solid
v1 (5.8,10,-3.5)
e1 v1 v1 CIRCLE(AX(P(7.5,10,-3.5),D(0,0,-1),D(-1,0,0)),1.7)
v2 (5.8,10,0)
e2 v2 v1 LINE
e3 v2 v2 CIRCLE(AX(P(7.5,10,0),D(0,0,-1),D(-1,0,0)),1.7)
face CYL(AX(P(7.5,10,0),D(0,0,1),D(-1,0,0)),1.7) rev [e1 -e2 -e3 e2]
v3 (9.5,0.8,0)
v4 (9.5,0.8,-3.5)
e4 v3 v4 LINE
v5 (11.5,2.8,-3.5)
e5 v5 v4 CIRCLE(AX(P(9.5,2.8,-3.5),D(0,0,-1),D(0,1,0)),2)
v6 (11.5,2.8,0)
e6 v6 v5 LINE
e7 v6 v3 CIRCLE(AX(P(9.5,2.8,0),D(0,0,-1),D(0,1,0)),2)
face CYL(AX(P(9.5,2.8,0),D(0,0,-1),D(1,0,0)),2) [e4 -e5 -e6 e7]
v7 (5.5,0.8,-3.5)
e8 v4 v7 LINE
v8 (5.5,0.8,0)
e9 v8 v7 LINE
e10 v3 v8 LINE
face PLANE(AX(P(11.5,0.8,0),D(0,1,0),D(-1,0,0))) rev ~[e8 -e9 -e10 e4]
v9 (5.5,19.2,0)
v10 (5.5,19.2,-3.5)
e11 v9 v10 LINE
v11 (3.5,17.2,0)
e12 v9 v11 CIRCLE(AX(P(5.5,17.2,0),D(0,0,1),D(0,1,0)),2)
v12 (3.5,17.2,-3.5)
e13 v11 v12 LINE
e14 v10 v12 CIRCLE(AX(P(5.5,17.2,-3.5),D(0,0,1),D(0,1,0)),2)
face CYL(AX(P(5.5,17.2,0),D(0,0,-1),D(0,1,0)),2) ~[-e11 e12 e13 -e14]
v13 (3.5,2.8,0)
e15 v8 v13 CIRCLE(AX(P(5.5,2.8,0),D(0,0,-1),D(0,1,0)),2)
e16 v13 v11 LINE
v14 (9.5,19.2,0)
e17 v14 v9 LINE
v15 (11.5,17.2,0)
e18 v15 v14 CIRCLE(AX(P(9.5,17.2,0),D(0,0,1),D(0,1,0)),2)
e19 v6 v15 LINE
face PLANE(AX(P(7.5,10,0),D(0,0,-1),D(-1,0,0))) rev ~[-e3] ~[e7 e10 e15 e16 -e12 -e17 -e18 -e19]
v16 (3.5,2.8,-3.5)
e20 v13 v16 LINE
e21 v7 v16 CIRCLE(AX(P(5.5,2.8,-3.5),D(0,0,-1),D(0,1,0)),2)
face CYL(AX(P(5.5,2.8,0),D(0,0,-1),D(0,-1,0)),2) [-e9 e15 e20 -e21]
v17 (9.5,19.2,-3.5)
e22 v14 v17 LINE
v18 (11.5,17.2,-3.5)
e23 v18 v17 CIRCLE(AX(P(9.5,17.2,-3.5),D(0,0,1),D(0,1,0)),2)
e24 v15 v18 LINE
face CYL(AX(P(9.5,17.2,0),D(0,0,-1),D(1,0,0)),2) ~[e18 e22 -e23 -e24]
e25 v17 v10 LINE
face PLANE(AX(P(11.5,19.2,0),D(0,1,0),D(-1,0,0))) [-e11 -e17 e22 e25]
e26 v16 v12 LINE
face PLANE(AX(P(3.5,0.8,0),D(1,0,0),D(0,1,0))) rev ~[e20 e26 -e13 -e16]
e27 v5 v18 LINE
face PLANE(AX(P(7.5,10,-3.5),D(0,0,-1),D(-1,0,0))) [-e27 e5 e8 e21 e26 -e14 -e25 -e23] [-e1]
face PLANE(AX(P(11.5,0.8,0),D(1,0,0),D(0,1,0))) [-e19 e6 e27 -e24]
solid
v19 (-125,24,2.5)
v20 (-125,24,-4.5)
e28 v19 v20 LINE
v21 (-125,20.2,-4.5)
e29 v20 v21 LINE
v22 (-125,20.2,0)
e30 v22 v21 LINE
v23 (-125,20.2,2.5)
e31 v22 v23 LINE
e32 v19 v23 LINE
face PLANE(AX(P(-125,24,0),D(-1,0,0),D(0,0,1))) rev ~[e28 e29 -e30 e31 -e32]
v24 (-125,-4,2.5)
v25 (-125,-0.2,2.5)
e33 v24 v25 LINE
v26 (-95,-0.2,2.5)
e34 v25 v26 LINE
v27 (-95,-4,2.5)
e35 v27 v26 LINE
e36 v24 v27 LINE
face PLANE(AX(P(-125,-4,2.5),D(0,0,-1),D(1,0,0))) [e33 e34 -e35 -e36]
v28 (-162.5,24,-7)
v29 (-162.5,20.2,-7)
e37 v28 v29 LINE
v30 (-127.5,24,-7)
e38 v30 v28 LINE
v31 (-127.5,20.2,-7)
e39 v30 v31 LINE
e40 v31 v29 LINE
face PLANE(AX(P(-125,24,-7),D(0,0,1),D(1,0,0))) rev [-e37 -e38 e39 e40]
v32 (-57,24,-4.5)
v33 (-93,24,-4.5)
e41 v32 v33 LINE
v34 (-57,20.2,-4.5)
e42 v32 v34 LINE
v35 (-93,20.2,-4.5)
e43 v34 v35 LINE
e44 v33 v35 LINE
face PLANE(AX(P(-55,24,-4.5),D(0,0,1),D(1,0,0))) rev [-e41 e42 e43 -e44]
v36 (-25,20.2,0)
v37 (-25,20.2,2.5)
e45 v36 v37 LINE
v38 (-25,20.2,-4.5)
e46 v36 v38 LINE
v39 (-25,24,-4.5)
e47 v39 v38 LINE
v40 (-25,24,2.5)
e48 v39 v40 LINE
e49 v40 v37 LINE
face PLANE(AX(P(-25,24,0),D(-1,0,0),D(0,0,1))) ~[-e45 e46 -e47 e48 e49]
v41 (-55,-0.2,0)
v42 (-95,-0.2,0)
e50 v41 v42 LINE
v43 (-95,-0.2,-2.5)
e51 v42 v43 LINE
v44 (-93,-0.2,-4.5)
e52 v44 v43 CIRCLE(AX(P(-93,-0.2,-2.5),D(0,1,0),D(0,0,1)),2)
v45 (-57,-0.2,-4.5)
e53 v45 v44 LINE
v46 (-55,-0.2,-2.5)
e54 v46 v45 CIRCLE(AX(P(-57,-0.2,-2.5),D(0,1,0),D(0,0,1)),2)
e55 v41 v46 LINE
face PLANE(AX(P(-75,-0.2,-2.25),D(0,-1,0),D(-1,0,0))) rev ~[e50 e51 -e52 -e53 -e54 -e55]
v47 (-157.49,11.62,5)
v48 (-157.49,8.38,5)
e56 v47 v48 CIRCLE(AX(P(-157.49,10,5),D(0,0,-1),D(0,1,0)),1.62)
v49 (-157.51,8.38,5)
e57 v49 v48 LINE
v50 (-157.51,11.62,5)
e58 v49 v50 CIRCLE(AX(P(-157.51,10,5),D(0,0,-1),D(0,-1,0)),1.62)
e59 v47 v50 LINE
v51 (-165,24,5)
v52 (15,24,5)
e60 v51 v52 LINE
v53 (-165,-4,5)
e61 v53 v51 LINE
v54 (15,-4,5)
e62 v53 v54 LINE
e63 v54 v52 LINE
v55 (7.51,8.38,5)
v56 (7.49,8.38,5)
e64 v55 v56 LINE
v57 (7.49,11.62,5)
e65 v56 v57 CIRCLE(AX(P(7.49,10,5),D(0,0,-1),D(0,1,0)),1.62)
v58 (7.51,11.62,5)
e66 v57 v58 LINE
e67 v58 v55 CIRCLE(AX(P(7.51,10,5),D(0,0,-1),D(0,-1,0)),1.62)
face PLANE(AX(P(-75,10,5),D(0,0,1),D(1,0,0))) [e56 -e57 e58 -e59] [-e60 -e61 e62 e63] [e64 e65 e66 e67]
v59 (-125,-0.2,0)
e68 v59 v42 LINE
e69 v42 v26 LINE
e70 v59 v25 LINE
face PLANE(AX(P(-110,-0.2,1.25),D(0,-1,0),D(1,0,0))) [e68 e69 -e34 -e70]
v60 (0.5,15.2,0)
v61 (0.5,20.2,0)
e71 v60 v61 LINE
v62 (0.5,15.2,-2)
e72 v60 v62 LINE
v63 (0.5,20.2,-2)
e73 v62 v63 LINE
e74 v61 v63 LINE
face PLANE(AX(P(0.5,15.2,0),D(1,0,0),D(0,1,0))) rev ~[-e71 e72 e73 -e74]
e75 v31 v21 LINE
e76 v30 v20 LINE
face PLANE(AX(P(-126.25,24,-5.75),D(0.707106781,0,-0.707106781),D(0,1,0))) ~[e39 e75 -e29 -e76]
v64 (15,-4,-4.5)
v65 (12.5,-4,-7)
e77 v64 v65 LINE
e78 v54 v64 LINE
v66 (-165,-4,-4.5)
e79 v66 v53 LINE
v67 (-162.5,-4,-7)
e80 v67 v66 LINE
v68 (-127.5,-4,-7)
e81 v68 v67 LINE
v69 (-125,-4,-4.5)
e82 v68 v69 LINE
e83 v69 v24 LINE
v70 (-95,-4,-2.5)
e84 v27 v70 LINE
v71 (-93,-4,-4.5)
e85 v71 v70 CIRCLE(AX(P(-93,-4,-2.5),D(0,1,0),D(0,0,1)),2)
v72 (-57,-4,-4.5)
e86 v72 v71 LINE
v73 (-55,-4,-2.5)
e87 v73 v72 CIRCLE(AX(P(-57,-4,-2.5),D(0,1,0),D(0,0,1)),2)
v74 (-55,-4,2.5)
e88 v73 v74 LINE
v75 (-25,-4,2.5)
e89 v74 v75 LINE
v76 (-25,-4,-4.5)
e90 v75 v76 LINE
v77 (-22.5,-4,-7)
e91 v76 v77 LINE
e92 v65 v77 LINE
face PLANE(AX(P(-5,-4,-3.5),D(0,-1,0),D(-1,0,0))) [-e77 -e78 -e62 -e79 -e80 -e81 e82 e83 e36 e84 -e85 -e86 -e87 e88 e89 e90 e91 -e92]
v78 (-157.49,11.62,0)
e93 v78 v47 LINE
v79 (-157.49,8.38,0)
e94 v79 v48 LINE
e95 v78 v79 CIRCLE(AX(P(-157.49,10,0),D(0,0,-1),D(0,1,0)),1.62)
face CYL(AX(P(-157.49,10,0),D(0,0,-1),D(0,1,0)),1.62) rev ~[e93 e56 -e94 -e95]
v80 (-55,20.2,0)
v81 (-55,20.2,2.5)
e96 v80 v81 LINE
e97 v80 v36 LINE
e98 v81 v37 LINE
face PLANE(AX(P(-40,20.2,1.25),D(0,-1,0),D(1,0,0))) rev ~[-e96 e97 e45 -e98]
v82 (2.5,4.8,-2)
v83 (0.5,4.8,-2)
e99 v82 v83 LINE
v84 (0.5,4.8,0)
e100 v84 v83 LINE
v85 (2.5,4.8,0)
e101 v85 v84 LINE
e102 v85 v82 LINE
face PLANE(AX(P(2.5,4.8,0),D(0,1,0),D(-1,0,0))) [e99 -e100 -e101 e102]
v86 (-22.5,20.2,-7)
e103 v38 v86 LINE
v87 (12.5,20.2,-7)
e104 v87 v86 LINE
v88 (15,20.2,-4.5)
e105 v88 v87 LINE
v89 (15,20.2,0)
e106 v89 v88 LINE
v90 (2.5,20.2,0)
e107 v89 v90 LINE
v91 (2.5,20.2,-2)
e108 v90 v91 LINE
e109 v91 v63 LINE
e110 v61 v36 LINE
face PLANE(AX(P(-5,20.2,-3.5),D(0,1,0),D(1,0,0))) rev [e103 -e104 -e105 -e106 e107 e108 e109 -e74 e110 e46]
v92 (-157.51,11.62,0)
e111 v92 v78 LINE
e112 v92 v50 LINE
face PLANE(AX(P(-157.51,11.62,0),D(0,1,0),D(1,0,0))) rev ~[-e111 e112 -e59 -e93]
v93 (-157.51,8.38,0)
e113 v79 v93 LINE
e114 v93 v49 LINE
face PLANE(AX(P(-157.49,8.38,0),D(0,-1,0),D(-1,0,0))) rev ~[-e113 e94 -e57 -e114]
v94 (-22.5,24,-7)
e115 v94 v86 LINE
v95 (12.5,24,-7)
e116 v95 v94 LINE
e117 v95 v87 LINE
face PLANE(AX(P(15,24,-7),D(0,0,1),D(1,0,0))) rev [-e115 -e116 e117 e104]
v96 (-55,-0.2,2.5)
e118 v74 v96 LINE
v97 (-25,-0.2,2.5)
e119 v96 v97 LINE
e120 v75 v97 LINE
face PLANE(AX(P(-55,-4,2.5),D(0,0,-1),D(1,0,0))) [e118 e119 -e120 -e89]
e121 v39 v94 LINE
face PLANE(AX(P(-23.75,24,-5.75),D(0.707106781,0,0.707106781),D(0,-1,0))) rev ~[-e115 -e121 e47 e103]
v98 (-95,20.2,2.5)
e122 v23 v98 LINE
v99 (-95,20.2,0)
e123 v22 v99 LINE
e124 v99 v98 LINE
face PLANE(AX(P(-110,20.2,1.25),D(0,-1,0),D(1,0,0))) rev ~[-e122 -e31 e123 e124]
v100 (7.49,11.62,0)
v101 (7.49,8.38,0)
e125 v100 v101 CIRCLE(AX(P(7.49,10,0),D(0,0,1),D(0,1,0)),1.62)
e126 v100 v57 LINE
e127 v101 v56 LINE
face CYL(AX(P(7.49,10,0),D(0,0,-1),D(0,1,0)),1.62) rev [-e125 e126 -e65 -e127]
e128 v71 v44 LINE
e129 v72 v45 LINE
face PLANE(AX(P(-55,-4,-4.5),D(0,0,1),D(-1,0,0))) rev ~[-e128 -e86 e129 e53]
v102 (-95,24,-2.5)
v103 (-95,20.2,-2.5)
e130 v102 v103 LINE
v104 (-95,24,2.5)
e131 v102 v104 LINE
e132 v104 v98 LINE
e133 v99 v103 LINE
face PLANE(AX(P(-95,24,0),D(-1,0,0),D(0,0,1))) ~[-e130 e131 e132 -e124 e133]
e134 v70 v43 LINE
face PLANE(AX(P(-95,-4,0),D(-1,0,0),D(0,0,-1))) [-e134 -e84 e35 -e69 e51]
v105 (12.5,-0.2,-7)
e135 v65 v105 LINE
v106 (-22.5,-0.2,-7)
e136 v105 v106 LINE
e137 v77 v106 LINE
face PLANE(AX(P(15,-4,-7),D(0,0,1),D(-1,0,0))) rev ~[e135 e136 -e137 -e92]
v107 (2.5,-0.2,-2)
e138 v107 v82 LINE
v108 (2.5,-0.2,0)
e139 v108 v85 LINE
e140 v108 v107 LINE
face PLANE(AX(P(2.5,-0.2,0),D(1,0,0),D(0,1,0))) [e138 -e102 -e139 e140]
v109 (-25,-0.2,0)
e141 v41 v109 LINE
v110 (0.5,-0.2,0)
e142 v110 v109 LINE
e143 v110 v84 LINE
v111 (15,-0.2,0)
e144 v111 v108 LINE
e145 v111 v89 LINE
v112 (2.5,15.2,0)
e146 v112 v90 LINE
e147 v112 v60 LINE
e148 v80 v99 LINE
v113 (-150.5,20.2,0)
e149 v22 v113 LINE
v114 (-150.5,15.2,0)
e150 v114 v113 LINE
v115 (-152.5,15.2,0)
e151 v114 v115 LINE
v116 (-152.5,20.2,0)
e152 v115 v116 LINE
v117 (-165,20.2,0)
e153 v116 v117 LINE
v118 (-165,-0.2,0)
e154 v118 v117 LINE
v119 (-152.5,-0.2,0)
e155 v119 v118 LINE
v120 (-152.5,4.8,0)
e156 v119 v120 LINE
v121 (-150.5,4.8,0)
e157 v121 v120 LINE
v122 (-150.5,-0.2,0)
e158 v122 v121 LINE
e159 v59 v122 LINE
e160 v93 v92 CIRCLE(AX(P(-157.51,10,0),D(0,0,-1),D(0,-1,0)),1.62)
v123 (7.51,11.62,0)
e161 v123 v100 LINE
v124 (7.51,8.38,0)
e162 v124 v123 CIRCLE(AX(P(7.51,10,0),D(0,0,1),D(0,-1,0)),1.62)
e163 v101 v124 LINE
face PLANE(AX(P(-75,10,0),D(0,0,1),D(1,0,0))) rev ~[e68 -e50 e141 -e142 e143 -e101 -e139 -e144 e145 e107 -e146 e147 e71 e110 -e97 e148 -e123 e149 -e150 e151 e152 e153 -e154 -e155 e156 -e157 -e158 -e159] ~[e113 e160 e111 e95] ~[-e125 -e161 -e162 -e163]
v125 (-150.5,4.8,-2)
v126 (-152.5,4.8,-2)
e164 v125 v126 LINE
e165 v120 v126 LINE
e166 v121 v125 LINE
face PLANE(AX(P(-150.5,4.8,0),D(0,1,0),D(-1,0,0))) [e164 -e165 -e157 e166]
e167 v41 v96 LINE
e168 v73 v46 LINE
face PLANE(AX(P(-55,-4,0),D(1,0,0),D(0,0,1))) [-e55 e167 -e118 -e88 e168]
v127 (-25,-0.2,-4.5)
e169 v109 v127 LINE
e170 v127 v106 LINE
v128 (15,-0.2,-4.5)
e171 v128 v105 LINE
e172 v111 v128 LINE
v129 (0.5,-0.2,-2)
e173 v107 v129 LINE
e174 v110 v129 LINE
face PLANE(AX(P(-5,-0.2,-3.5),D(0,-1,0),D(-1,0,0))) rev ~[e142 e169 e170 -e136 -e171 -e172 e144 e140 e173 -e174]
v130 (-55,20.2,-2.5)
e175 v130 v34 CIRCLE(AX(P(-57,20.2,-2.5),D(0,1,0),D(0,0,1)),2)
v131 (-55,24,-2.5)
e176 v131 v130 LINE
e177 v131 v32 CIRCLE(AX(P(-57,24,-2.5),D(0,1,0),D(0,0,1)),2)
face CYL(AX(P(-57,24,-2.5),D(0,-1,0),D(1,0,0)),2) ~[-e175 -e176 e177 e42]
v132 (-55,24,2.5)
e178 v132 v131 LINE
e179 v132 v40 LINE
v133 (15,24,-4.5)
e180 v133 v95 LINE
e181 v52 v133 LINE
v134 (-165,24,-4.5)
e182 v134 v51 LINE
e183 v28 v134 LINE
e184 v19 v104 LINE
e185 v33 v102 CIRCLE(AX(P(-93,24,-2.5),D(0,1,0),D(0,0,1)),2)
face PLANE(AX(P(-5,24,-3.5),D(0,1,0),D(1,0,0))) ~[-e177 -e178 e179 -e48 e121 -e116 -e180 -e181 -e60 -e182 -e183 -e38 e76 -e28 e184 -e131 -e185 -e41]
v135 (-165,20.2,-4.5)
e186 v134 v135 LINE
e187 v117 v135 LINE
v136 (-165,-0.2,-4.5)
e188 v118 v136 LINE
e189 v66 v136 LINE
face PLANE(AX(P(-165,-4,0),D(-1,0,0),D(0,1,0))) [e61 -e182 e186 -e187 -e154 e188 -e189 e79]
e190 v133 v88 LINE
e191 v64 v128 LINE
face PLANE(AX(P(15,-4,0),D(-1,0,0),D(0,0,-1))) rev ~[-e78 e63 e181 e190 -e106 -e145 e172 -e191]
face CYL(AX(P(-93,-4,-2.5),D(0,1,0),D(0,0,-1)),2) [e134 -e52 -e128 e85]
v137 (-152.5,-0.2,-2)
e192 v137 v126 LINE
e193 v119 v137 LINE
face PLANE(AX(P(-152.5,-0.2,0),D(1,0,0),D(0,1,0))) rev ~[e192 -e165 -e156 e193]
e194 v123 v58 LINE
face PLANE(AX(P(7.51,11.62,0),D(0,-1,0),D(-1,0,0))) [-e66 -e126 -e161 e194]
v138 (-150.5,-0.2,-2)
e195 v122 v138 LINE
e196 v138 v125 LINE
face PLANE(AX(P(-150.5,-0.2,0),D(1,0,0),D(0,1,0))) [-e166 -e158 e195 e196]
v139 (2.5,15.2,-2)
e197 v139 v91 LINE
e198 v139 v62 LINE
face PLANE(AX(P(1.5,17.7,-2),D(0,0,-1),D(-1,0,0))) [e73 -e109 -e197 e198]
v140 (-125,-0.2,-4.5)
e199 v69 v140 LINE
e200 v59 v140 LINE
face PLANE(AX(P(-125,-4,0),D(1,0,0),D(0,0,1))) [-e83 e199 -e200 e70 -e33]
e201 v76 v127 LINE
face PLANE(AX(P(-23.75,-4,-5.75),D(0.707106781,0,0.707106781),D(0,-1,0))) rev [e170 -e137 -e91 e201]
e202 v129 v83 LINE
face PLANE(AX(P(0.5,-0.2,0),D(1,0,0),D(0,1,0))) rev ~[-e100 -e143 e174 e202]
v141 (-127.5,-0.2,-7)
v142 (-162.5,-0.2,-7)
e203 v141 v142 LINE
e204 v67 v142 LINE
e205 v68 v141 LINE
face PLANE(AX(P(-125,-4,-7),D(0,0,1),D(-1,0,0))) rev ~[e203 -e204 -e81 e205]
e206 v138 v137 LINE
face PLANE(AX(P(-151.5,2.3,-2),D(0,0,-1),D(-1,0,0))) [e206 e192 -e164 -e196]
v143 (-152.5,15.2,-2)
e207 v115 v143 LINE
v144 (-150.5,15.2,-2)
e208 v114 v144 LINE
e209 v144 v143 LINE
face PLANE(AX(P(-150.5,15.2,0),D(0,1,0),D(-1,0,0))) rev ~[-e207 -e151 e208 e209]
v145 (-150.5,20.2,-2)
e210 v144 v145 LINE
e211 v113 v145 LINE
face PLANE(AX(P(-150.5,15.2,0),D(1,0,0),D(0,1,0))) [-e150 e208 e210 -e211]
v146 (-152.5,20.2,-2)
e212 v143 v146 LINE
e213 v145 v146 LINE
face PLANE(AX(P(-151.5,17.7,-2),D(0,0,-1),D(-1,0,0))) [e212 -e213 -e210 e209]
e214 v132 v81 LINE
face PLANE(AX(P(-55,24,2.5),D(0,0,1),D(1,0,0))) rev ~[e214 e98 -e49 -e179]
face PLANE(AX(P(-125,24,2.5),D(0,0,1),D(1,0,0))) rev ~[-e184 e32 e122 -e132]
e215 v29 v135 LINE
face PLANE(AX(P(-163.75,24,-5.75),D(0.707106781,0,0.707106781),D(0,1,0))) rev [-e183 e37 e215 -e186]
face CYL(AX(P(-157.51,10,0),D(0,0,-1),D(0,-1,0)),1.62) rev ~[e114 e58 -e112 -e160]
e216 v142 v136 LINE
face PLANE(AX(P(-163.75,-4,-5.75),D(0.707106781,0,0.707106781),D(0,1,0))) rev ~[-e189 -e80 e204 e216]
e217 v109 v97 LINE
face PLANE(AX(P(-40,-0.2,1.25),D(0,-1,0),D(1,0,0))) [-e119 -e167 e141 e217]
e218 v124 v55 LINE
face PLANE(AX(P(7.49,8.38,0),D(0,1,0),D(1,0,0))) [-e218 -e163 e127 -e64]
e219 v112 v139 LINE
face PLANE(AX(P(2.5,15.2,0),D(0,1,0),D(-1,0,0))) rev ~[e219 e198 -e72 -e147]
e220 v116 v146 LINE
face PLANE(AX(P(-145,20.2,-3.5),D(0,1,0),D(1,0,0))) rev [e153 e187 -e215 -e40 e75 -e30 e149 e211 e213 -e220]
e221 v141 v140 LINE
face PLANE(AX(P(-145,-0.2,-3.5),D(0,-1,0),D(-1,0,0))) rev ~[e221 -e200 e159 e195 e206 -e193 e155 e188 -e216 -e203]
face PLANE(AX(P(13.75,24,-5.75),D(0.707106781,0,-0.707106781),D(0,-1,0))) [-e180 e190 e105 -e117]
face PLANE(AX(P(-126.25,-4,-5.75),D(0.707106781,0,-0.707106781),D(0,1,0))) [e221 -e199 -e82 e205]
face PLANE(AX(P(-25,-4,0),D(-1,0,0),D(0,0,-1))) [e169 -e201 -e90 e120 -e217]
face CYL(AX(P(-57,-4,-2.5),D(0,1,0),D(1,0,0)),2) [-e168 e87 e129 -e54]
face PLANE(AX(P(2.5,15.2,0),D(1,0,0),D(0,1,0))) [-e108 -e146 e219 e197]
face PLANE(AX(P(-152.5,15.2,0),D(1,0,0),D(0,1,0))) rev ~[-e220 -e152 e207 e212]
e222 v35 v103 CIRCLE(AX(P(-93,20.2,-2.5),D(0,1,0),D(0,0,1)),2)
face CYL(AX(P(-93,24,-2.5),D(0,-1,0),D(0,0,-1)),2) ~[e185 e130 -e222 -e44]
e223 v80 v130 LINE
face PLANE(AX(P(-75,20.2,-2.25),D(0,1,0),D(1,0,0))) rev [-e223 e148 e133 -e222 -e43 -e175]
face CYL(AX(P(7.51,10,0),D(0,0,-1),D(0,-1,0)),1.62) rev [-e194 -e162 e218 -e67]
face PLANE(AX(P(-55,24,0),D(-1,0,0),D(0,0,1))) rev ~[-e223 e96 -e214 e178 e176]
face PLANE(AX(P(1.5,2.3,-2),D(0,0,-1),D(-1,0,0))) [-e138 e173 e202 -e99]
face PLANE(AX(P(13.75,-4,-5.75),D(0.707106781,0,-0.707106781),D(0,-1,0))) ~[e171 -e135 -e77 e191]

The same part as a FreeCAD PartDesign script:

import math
import FreeCAD as App
import Part
import Sketcher


def edges_at(feature, points):
    """Names of the edges that pass closest to the given points."""
    edges = feature.Shape.Edges
    near = lambda p: min(range(len(edges)), key=lambda i: edges[i].distToShape(Part.Vertex(*p))[0])
    return sorted({f"Edge{near(p) + 1}" for p in points})

doc = App.newDocument("Part")
params = doc.addObject("Spreadsheet::Sheet", "Params")
for row, (alias, value) in enumerate([
    ("sketch1_width", "180 mm"),
    ("sketch1_height", "28 mm"),
    ("pad1_length", "5 mm"),
    ("sketch2_width", "40 mm"),
    ("sketch2_height", "7 mm"),
    ("sketch2_height2", "4.5 mm"),
    ("pad2_length", "3.8 mm"),
    ("chamfer_size", "2.5 mm"),
    ("fillet_radius", "2 mm"),
    ("sketch3_width", "2 mm"),
    ("sketch3_height", "5 mm"),
    ("pad3_length", "2 mm"),
    ("sketch4_radius", "1.62 mm"),
    ("sketch4_width", "0.02 mm"),
    ("sketch5_width", "30 mm"),
    ("sketch5_height", "2.5 mm"),
    ("pocket2_length", "3.8 mm"),
    ("sketch6_width", "30 mm"),
    ("sketch6_height", "2.5 mm"),
    ("pocket3_length", "3.8 mm"),
    ("sketch7_diameter", "3.4 mm"),
    ("sketch7_width", "8 mm"),
    ("sketch7_height", "18.4 mm"),
    ("pad4_length", "3.5 mm"),
    ("fillet2_radius", "2 mm"),
], start=1):
    params.set(f"A{row}", alias)
    params.set(f"B{row}", "=" + value)
    params.setAlias(f"B{row}", alias)

body = doc.addObject("PartDesign::Body", "Body")

sketch1 = body.newObject("Sketcher::SketchObject", "Sketch")
sketch1.AttachmentSupport = (doc.getObject("XY_Plane"), [""])
sketch1.MapMode = "FlatFace"
sketch1.addGeometry(Part.LineSegment(App.Vector(-165, 24, 0), App.Vector(-165, -4, 0)), False)
sketch1.addGeometry(Part.LineSegment(App.Vector(-165, -4, 0), App.Vector(15, -4, 0)), False)
sketch1.addGeometry(Part.LineSegment(App.Vector(15, -4, 0), App.Vector(15, 24, 0)), False)
sketch1.addGeometry(Part.LineSegment(App.Vector(15, 24, 0), App.Vector(-165, 24, 0)), False)
sketch1.addConstraint(Sketcher.Constraint("Coincident", 0, 2, 1, 1))
sketch1.addConstraint(Sketcher.Constraint("Coincident", 1, 2, 2, 1))
sketch1.addConstraint(Sketcher.Constraint("Coincident", 2, 2, 3, 1))
sketch1.addConstraint(Sketcher.Constraint("Coincident", 3, 2, 0, 1))
sketch1.addConstraint(Sketcher.Constraint("Vertical", 0))
sketch1.addConstraint(Sketcher.Constraint("Horizontal", 1))
sketch1.addConstraint(Sketcher.Constraint("Vertical", 2))
sketch1.addConstraint(Sketcher.Constraint("Horizontal", 3))
sketch1.addConstraint(Sketcher.Constraint("DistanceX", 1, 1, 1, 2, 180.0))
sketch1.addConstraint(Sketcher.Constraint("DistanceY", 0, 2, 0, 1, 28.0))
sketch1.addConstraint(Sketcher.Constraint("DistanceX", 0, 2, -1, 1, 165.0))
sketch1.addConstraint(Sketcher.Constraint("DistanceY", 0, 2, -1, 1, 4.0))
sketch1.setExpression("Constraints[8]", "Params.sketch1_width")
sketch1.setExpression("Constraints[9]", "Params.sketch1_height")
pad1 = body.newObject("PartDesign::Pad", "Pad")
pad1.Profile = sketch1
pad1.setExpression("Length", "Params.pad1_length")

sketch2 = body.newObject("Sketcher::SketchObject", "Sketch001")
sketch2.AttachmentSupport = (doc.getObject("XZ_Plane"), [""])
sketch2.MapMode = "FlatFace"
sketch2.AttachmentOffset = App.Placement(App.Vector(0, 0, 4), App.Rotation())
sketch2.addGeometry(Part.LineSegment(App.Vector(15, -7, 0), App.Vector(15, 0, 0)), False)
sketch2.addGeometry(Part.LineSegment(App.Vector(15, 0, 0), App.Vector(-25, 0, 0)), False)
sketch2.addGeometry(Part.LineSegment(App.Vector(-25, 0, 0), App.Vector(-25, -7, 0)), False)
sketch2.addGeometry(Part.LineSegment(App.Vector(-25, -7, 0), App.Vector(15, -7, 0)), False)
sketch2.addGeometry(Part.LineSegment(App.Vector(-55, -4.5, 0), App.Vector(-55, 0, 0)), False)
sketch2.addGeometry(Part.LineSegment(App.Vector(-55, 0, 0), App.Vector(-95, 0, 0)), False)
sketch2.addGeometry(Part.LineSegment(App.Vector(-95, 0, 0), App.Vector(-95, -4.5, 0)), False)
sketch2.addGeometry(Part.LineSegment(App.Vector(-95, -4.5, 0), App.Vector(-55, -4.5, 0)), False)
sketch2.addGeometry(Part.LineSegment(App.Vector(-125, -7, 0), App.Vector(-125, 0, 0)), False)
sketch2.addGeometry(Part.LineSegment(App.Vector(-125, 0, 0), App.Vector(-165, 0, 0)), False)
sketch2.addGeometry(Part.LineSegment(App.Vector(-165, 0, 0), App.Vector(-165, -7, 0)), False)
sketch2.addGeometry(Part.LineSegment(App.Vector(-165, -7, 0), App.Vector(-125, -7, 0)), False)
sketch2.addConstraint(Sketcher.Constraint("Coincident", 0, 2, 1, 1))
sketch2.addConstraint(Sketcher.Constraint("Coincident", 1, 2, 2, 1))
sketch2.addConstraint(Sketcher.Constraint("Coincident", 2, 2, 3, 1))
sketch2.addConstraint(Sketcher.Constraint("Coincident", 3, 2, 0, 1))
sketch2.addConstraint(Sketcher.Constraint("Coincident", 4, 2, 5, 1))
sketch2.addConstraint(Sketcher.Constraint("Coincident", 5, 2, 6, 1))
sketch2.addConstraint(Sketcher.Constraint("Coincident", 6, 2, 7, 1))
sketch2.addConstraint(Sketcher.Constraint("Coincident", 7, 2, 4, 1))
sketch2.addConstraint(Sketcher.Constraint("Coincident", 8, 2, 9, 1))
sketch2.addConstraint(Sketcher.Constraint("Coincident", 9, 2, 10, 1))
sketch2.addConstraint(Sketcher.Constraint("Coincident", 10, 2, 11, 1))
sketch2.addConstraint(Sketcher.Constraint("Coincident", 11, 2, 8, 1))
sketch2.addConstraint(Sketcher.Constraint("Vertical", 0))
sketch2.addConstraint(Sketcher.Constraint("Horizontal", 1))
sketch2.addConstraint(Sketcher.Constraint("Vertical", 2))
sketch2.addConstraint(Sketcher.Constraint("Horizontal", 3))
sketch2.addConstraint(Sketcher.Constraint("Vertical", 4))
sketch2.addConstraint(Sketcher.Constraint("Horizontal", 5))
sketch2.addConstraint(Sketcher.Constraint("Vertical", 6))
sketch2.addConstraint(Sketcher.Constraint("Horizontal", 7))
sketch2.addConstraint(Sketcher.Constraint("Vertical", 8))
sketch2.addConstraint(Sketcher.Constraint("Horizontal", 9))
sketch2.addConstraint(Sketcher.Constraint("Vertical", 10))
sketch2.addConstraint(Sketcher.Constraint("Horizontal", 11))
sketch2.addConstraint(Sketcher.Constraint("PointOnObject", 0, 2, -1))
sketch2.addConstraint(Sketcher.Constraint("PointOnObject", 4, 2, -1))
sketch2.addConstraint(Sketcher.Constraint("PointOnObject", 8, 2, -1))
sketch2.addConstraint(Sketcher.Constraint("Horizontal", 3, 2, 10, 2))
sketch2.addConstraint(Sketcher.Constraint("Equal", 3, 5))
sketch2.addConstraint(Sketcher.Constraint("Equal", 7, 9))
sketch2.addConstraint(Sketcher.Constraint("DistanceX", 1, 2, 1, 1, 40.0))
sketch2.addConstraint(Sketcher.Constraint("DistanceY", 0, 1, 0, 2, 7.0))
sketch2.addConstraint(Sketcher.Constraint("DistanceY", 4, 1, 4, 2, 4.5))
sketch2.addConstraint(Sketcher.Constraint("DistanceX", -1, 1, 0, 2, 15.0))
sketch2.addConstraint(Sketcher.Constraint("DistanceX", 4, 2, -1, 1, 55.0))
sketch2.addConstraint(Sketcher.Constraint("DistanceX", 8, 2, -1, 1, 125.0))
sketch2.setExpression("Constraints[30]", "Params.sketch2_width")
sketch2.setExpression("Constraints[31]", "Params.sketch2_height")
sketch2.setExpression("Constraints[32]", "Params.sketch2_height2")
pad2 = body.newObject("PartDesign::Pad", "Pad001")
pad2.Profile = sketch2
pad2.setExpression("Length", "Params.pad2_length")
pad2.Reversed = True
doc.recompute()

chamfer = body.newObject("PartDesign::Chamfer", "Chamfer")
chamfer.Base = (pad2, edges_at(pad2, [
    (-25, -2.1, -7),
    (15, -2.1, -7),
    (-125, -2.1, -7),
    (-165, -2.1, -7),
]))
chamfer.setExpression("Size", "Params.chamfer_size")
doc.recompute()

fillet = body.newObject("PartDesign::Fillet", "Fillet")
fillet.Base = (chamfer, edges_at(chamfer, [(-95, -2.1, -4.5), (-55, -2.1, -4.5)]))
fillet.setExpression("Radius", "Params.fillet_radius")
body2 = doc.addObject("PartDesign::Body", "Body001")
doc.recompute()

body2.BaseFeature = body
doc.recompute()

mirroring = doc.addObject("Part::Mirroring", "Mirroring")
mirroring.Source = body
mirroring.Base = App.Vector(0, 10, 0)
mirroring.Normal = App.Vector(0, 1, 0)
body3 = doc.addObject("PartDesign::Body", "Body002")
body3.BaseFeature = mirroring
boolean = body2.newObject("PartDesign::Boolean", "Boolean")
boolean.Type = "Fuse"
boolean.addObjects([body3])
doc.recompute()

sketch3 = body2.newObject("Sketcher::SketchObject", "Sketch002")
sketch3.AttachmentSupport = (doc.getObject("XY_Plane001"), [""])
sketch3.MapMode = "FlatFace"
sketch3.addGeometry(Part.LineSegment(App.Vector(2.5, 20.2, 0), App.Vector(2.5, 15.2, 0)), False)
sketch3.addGeometry(Part.LineSegment(App.Vector(2.5, 15.2, 0), App.Vector(0.5, 15.2, 0)), False)
sketch3.addGeometry(Part.LineSegment(App.Vector(0.5, 15.2, 0), App.Vector(0.5, 20.2, 0)), False)
sketch3.addGeometry(Part.LineSegment(App.Vector(0.5, 20.2, 0), App.Vector(2.5, 20.2, 0)), False)
sketch3.addGeometry(Part.LineSegment(App.Vector(2.5, 4.8, 0), App.Vector(2.5, -0.2, 0)), False)
sketch3.addGeometry(Part.LineSegment(App.Vector(2.5, -0.2, 0), App.Vector(0.5, -0.2, 0)), False)
sketch3.addGeometry(Part.LineSegment(App.Vector(0.5, -0.2, 0), App.Vector(0.5, 4.8, 0)), False)
sketch3.addGeometry(Part.LineSegment(App.Vector(0.5, 4.8, 0), App.Vector(2.5, 4.8, 0)), False)
sketch3.addGeometry(Part.LineSegment(App.Vector(-150.5, 20.2, 0), App.Vector(-150.5, 15.2, 0)), False)
sketch3.addGeometry(Part.LineSegment(App.Vector(-150.5, 15.2, 0), App.Vector(-152.5, 15.2, 0)), False)
sketch3.addGeometry(Part.LineSegment(App.Vector(-152.5, 15.2, 0), App.Vector(-152.5, 20.2, 0)), False)
sketch3.addGeometry(Part.LineSegment(App.Vector(-152.5, 20.2, 0), App.Vector(-150.5, 20.2, 0)), False)
sketch3.addGeometry(Part.LineSegment(App.Vector(-150.5, 4.8, 0), App.Vector(-150.5, -0.2, 0)), False)
sketch3.addGeometry(Part.LineSegment(App.Vector(-150.5, -0.2, 0), App.Vector(-152.5, -0.2, 0)), False)
sketch3.addGeometry(Part.LineSegment(App.Vector(-152.5, -0.2, 0), App.Vector(-152.5, 4.8, 0)), False)
sketch3.addGeometry(Part.LineSegment(App.Vector(-152.5, 4.8, 0), App.Vector(-150.5, 4.8, 0)), False)
sketch3.addConstraint(Sketcher.Constraint("Coincident", 0, 2, 1, 1))
sketch3.addConstraint(Sketcher.Constraint("Coincident", 1, 2, 2, 1))
sketch3.addConstraint(Sketcher.Constraint("Coincident", 2, 2, 3, 1))
sketch3.addConstraint(Sketcher.Constraint("Coincident", 3, 2, 0, 1))
sketch3.addConstraint(Sketcher.Constraint("Coincident", 4, 2, 5, 1))
sketch3.addConstraint(Sketcher.Constraint("Coincident", 5, 2, 6, 1))
sketch3.addConstraint(Sketcher.Constraint("Coincident", 6, 2, 7, 1))
sketch3.addConstraint(Sketcher.Constraint("Coincident", 7, 2, 4, 1))
sketch3.addConstraint(Sketcher.Constraint("Coincident", 8, 2, 9, 1))
sketch3.addConstraint(Sketcher.Constraint("Coincident", 9, 2, 10, 1))
sketch3.addConstraint(Sketcher.Constraint("Coincident", 10, 2, 11, 1))
sketch3.addConstraint(Sketcher.Constraint("Coincident", 11, 2, 8, 1))
sketch3.addConstraint(Sketcher.Constraint("Coincident", 12, 2, 13, 1))
sketch3.addConstraint(Sketcher.Constraint("Coincident", 13, 2, 14, 1))
sketch3.addConstraint(Sketcher.Constraint("Coincident", 14, 2, 15, 1))
sketch3.addConstraint(Sketcher.Constraint("Coincident", 15, 2, 12, 1))
sketch3.addConstraint(Sketcher.Constraint("Vertical", 0))
sketch3.addConstraint(Sketcher.Constraint("Horizontal", 1))
sketch3.addConstraint(Sketcher.Constraint("Vertical", 2))
sketch3.addConstraint(Sketcher.Constraint("Horizontal", 3))
sketch3.addConstraint(Sketcher.Constraint("Vertical", 4))
sketch3.addConstraint(Sketcher.Constraint("Horizontal", 5))
sketch3.addConstraint(Sketcher.Constraint("Vertical", 6))
sketch3.addConstraint(Sketcher.Constraint("Horizontal", 7))
sketch3.addConstraint(Sketcher.Constraint("Vertical", 8))
sketch3.addConstraint(Sketcher.Constraint("Horizontal", 9))
sketch3.addConstraint(Sketcher.Constraint("Vertical", 10))
sketch3.addConstraint(Sketcher.Constraint("Horizontal", 11))
sketch3.addConstraint(Sketcher.Constraint("Vertical", 12))
sketch3.addConstraint(Sketcher.Constraint("Horizontal", 13))
sketch3.addConstraint(Sketcher.Constraint("Vertical", 14))
sketch3.addConstraint(Sketcher.Constraint("Horizontal", 15))
sketch3.addConstraint(Sketcher.Constraint("Horizontal", 1, 2, 8, 2))
sketch3.addConstraint(Sketcher.Constraint("Horizontal", 3, 2, 10, 2))
sketch3.addConstraint(Sketcher.Constraint("Horizontal", 5, 2, 12, 2))
sketch3.addConstraint(Sketcher.Constraint("Horizontal", 7, 2, 14, 2))
sketch3.addConstraint(Sketcher.Constraint("Vertical", 3, 2, 4, 2))
sketch3.addConstraint(Sketcher.Constraint("Vertical", 2, 2, 5, 2))
sketch3.addConstraint(Sketcher.Constraint("Vertical", 11, 2, 12, 2))
sketch3.addConstraint(Sketcher.Constraint("Vertical", 10, 2, 13, 2))
sketch3.addConstraint(Sketcher.Constraint("Equal", 7, 9))
sketch3.addConstraint(Sketcher.Constraint("Equal", 2, 4))
sketch3.addConstraint(Sketcher.Constraint("DistanceX", 1, 2, 1, 1, 2.0))
sketch3.addConstraint(Sketcher.Constraint("DistanceY", 0, 2, 0, 1, 5.0))
sketch3.addConstraint(Sketcher.Constraint("DistanceX", 8, 2, 1, 2, 151.0))
sketch3.addConstraint(Sketcher.Constraint("DistanceX", -1, 1, 0, 2, 2.5))
sketch3.addConstraint(Sketcher.Constraint("DistanceY", -1, 1, 0, 2, 15.2))
sketch3.addConstraint(Sketcher.Constraint("DistanceY", 4, 2, -1, 1, 0.2))
sketch3.setExpression("Constraints[42]", "Params.sketch3_width")
sketch3.setExpression("Constraints[43]", "Params.sketch3_height")
pad3 = body2.newObject("PartDesign::Pad", "Pad002")
pad3.Profile = sketch3
pad3.setExpression("Length", "Params.pad3_length")
pad3.Reversed = True

sketch4 = body2.newObject("Sketcher::SketchObject", "Sketch003")
sketch4.AttachmentSupport = (doc.getObject("XY_Plane001"), [""])
sketch4.MapMode = "FlatFace"
sketch4.addGeometry(Part.LineSegment(App.Vector(7.49, 11.62, 0), App.Vector(7.51, 11.62, 0)), False)
sketch4.addGeometry(Part.ArcOfCircle(Part.Circle(App.Vector(7.51, 10, 0), App.Vector(0, 0, 1), 1.62), math.radians(-90), math.radians(90)), False)
sketch4.addGeometry(Part.LineSegment(App.Vector(7.51, 8.38, 0), App.Vector(7.49, 8.38, 0)), False)
sketch4.addGeometry(Part.ArcOfCircle(Part.Circle(App.Vector(7.49, 10, 0), App.Vector(0, 0, 1), 1.62), math.radians(90), math.radians(270)), False)
sketch4.addGeometry(Part.LineSegment(App.Vector(-157.51, 11.62, 0), App.Vector(-157.49, 11.62, 0)), False)
sketch4.addGeometry(Part.ArcOfCircle(Part.Circle(App.Vector(-157.49, 10, 0), App.Vector(0, 0, 1), 1.62), math.radians(-90), math.radians(90)), False)
sketch4.addGeometry(Part.LineSegment(App.Vector(-157.49, 8.38, 0), App.Vector(-157.51, 8.38, 0)), False)
sketch4.addGeometry(Part.ArcOfCircle(Part.Circle(App.Vector(-157.51, 10, 0), App.Vector(0, 0, 1), 1.62), math.radians(90), math.radians(270)), False)
sketch4.addConstraint(Sketcher.Constraint("Tangent", 0, 2, 1, 2))
sketch4.addConstraint(Sketcher.Constraint("Tangent", 1, 1, 2, 1))
sketch4.addConstraint(Sketcher.Constraint("Tangent", 2, 2, 3, 2))
sketch4.addConstraint(Sketcher.Constraint("Tangent", 3, 1, 0, 1))
sketch4.addConstraint(Sketcher.Constraint("Tangent", 4, 2, 5, 2))
sketch4.addConstraint(Sketcher.Constraint("Tangent", 5, 1, 6, 1))
sketch4.addConstraint(Sketcher.Constraint("Tangent", 6, 2, 7, 2))
sketch4.addConstraint(Sketcher.Constraint("Tangent", 7, 1, 4, 1))
sketch4.addConstraint(Sketcher.Constraint("Horizontal", 0))
sketch4.addConstraint(Sketcher.Constraint("Horizontal", 2))
sketch4.addConstraint(Sketcher.Constraint("Horizontal", 4))
sketch4.addConstraint(Sketcher.Constraint("Horizontal", 6))
sketch4.addConstraint(Sketcher.Constraint("Equal", 3, 5))
sketch4.addConstraint(Sketcher.Constraint("Horizontal", 3, 3, 5, 3))
sketch4.addConstraint(Sketcher.Constraint("Equal", 2, 4))
sketch4.addConstraint(Sketcher.Constraint("Radius", 1, 1.62))
sketch4.addConstraint(Sketcher.Constraint("DistanceY", -1, 1, 1, 3, 10.0))
sketch4.addConstraint(Sketcher.Constraint("DistanceX", 5, 3, 1, 3, 165.0))
sketch4.addConstraint(Sketcher.Constraint("DistanceX", 0, 1, 0, 2, 0.02))
sketch4.addConstraint(Sketcher.Constraint("DistanceX", -1, 1, 1, 3, 7.51))
sketch4.setExpression("Constraints[15]", "Params.sketch4_radius")
sketch4.setExpression("Constraints[18]", "Params.sketch4_width")
pocket1 = body2.newObject("PartDesign::Pocket", "Pocket")
pocket1.Profile = sketch4
pocket1.Type = "ThroughAll"
pocket1.Reversed = True

sketch5 = body2.newObject("Sketcher::SketchObject", "Sketch004")
sketch5.AttachmentSupport = (doc.getObject("XZ_Plane001"), [""])
sketch5.MapMode = "FlatFace"
sketch5.AttachmentOffset = App.Placement(App.Vector(0, 0, 4), App.Rotation())
sketch5.addGeometry(Part.LineSegment(App.Vector(-55, 2.5, 0), App.Vector(-55, 0, 0)), False)
sketch5.addGeometry(Part.LineSegment(App.Vector(-55, 0, 0), App.Vector(-25, 0, 0)), False)
sketch5.addGeometry(Part.LineSegment(App.Vector(-25, 0, 0), App.Vector(-25, 2.5, 0)), False)
sketch5.addGeometry(Part.LineSegment(App.Vector(-25, 2.5, 0), App.Vector(-55, 2.5, 0)), False)
sketch5.addGeometry(Part.LineSegment(App.Vector(-125, 2.5, 0), App.Vector(-125, 0, 0)), False)
sketch5.addGeometry(Part.LineSegment(App.Vector(-125, 0, 0), App.Vector(-95, 0, 0)), False)
sketch5.addGeometry(Part.LineSegment(App.Vector(-95, 0, 0), App.Vector(-95, 2.5, 0)), False)
sketch5.addGeometry(Part.LineSegment(App.Vector(-95, 2.5, 0), App.Vector(-125, 2.5, 0)), False)
sketch5.addConstraint(Sketcher.Constraint("Coincident", 0, 2, 1, 1))
sketch5.addConstraint(Sketcher.Constraint("Coincident", 1, 2, 2, 1))
sketch5.addConstraint(Sketcher.Constraint("Coincident", 2, 2, 3, 1))
sketch5.addConstraint(Sketcher.Constraint("Coincident", 3, 2, 0, 1))
sketch5.addConstraint(Sketcher.Constraint("Coincident", 4, 2, 5, 1))
sketch5.addConstraint(Sketcher.Constraint("Coincident", 5, 2, 6, 1))
sketch5.addConstraint(Sketcher.Constraint("Coincident", 6, 2, 7, 1))
sketch5.addConstraint(Sketcher.Constraint("Coincident", 7, 2, 4, 1))
sketch5.addConstraint(Sketcher.Constraint("Vertical", 0))
sketch5.addConstraint(Sketcher.Constraint("Horizontal", 1))
sketch5.addConstraint(Sketcher.Constraint("Vertical", 2))
sketch5.addConstraint(Sketcher.Constraint("Horizontal", 3))
sketch5.addConstraint(Sketcher.Constraint("Vertical", 4))
sketch5.addConstraint(Sketcher.Constraint("Horizontal", 5))
sketch5.addConstraint(Sketcher.Constraint("Vertical", 6))
sketch5.addConstraint(Sketcher.Constraint("Horizontal", 7))
sketch5.addConstraint(Sketcher.Constraint("PointOnObject", 0, 2, -1))
sketch5.addConstraint(Sketcher.Constraint("PointOnObject", 4, 2, -1))
sketch5.addConstraint(Sketcher.Constraint("Horizontal", 3, 2, 6, 2))
sketch5.addConstraint(Sketcher.Constraint("Equal", 3, 5))
sketch5.addConstraint(Sketcher.Constraint("DistanceX", 1, 1, 1, 2, 30.0))
sketch5.addConstraint(Sketcher.Constraint("DistanceY", 0, 2, 0, 1, 2.5))
sketch5.addConstraint(Sketcher.Constraint("DistanceX", 0, 2, -1, 1, 55.0))
sketch5.addConstraint(Sketcher.Constraint("DistanceX", 4, 2, -1, 1, 125.0))
sketch5.setExpression("Constraints[20]", "Params.sketch5_width")
sketch5.setExpression("Constraints[21]", "Params.sketch5_height")
pocket2 = body2.newObject("PartDesign::Pocket", "Pocket001")
pocket2.Profile = sketch5
pocket2.setExpression("Length", "Params.pocket2_length")

sketch6 = body2.newObject("Sketcher::SketchObject", "Sketch005")
sketch6.AttachmentSupport = (doc.getObject("XZ_Plane001"), [""])
sketch6.MapMode = "FlatFace"
sketch6.AttachmentOffset = App.Placement(App.Vector(0, 0, -24), App.Rotation())
sketch6.addGeometry(Part.LineSegment(App.Vector(-55, 2.5, 0), App.Vector(-55, 0, 0)), False)
sketch6.addGeometry(Part.LineSegment(App.Vector(-55, 0, 0), App.Vector(-25, 0, 0)), False)
sketch6.addGeometry(Part.LineSegment(App.Vector(-25, 0, 0), App.Vector(-25, 2.5, 0)), False)
sketch6.addGeometry(Part.LineSegment(App.Vector(-25, 2.5, 0), App.Vector(-55, 2.5, 0)), False)
sketch6.addGeometry(Part.LineSegment(App.Vector(-125, 2.5, 0), App.Vector(-125, 0, 0)), False)
sketch6.addGeometry(Part.LineSegment(App.Vector(-125, 0, 0), App.Vector(-95, 0, 0)), False)
sketch6.addGeometry(Part.LineSegment(App.Vector(-95, 0, 0), App.Vector(-95, 2.5, 0)), False)
sketch6.addGeometry(Part.LineSegment(App.Vector(-95, 2.5, 0), App.Vector(-125, 2.5, 0)), False)
sketch6.addConstraint(Sketcher.Constraint("Coincident", 0, 2, 1, 1))
sketch6.addConstraint(Sketcher.Constraint("Coincident", 1, 2, 2, 1))
sketch6.addConstraint(Sketcher.Constraint("Coincident", 2, 2, 3, 1))
sketch6.addConstraint(Sketcher.Constraint("Coincident", 3, 2, 0, 1))
sketch6.addConstraint(Sketcher.Constraint("Coincident", 4, 2, 5, 1))
sketch6.addConstraint(Sketcher.Constraint("Coincident", 5, 2, 6, 1))
sketch6.addConstraint(Sketcher.Constraint("Coincident", 6, 2, 7, 1))
sketch6.addConstraint(Sketcher.Constraint("Coincident", 7, 2, 4, 1))
sketch6.addConstraint(Sketcher.Constraint("Vertical", 0))
sketch6.addConstraint(Sketcher.Constraint("Horizontal", 1))
sketch6.addConstraint(Sketcher.Constraint("Vertical", 2))
sketch6.addConstraint(Sketcher.Constraint("Horizontal", 3))
sketch6.addConstraint(Sketcher.Constraint("Vertical", 4))
sketch6.addConstraint(Sketcher.Constraint("Horizontal", 5))
sketch6.addConstraint(Sketcher.Constraint("Vertical", 6))
sketch6.addConstraint(Sketcher.Constraint("Horizontal", 7))
sketch6.addConstraint(Sketcher.Constraint("PointOnObject", 0, 2, -1))
sketch6.addConstraint(Sketcher.Constraint("PointOnObject", 4, 2, -1))
sketch6.addConstraint(Sketcher.Constraint("Horizontal", 3, 2, 6, 2))
sketch6.addConstraint(Sketcher.Constraint("Equal", 3, 5))
sketch6.addConstraint(Sketcher.Constraint("DistanceX", 1, 1, 1, 2, 30.0))
sketch6.addConstraint(Sketcher.Constraint("DistanceY", 0, 2, 0, 1, 2.5))
sketch6.addConstraint(Sketcher.Constraint("DistanceX", 0, 2, -1, 1, 55.0))
sketch6.addConstraint(Sketcher.Constraint("DistanceX", 4, 2, -1, 1, 125.0))
sketch6.setExpression("Constraints[20]", "Params.sketch6_width")
sketch6.setExpression("Constraints[21]", "Params.sketch6_height")
pocket3 = body2.newObject("PartDesign::Pocket", "Pocket002")
pocket3.Profile = sketch6
pocket3.setExpression("Length", "Params.pocket3_length")
pocket3.Reversed = True
body4 = doc.addObject("PartDesign::Body", "Body003")

sketch7 = body4.newObject("Sketcher::SketchObject", "Sketch006")
sketch7.AttachmentSupport = (doc.getObject("XY_Plane003"), [""])
sketch7.MapMode = "FlatFace"
sketch7.addGeometry(Part.LineSegment(App.Vector(11.5, 19.2, 0), App.Vector(11.5, 0.8, 0)), False)
sketch7.addGeometry(Part.LineSegment(App.Vector(11.5, 0.8, 0), App.Vector(3.5, 0.8, 0)), False)
sketch7.addGeometry(Part.LineSegment(App.Vector(3.5, 0.8, 0), App.Vector(3.5, 19.2, 0)), False)
sketch7.addGeometry(Part.LineSegment(App.Vector(3.5, 19.2, 0), App.Vector(11.5, 19.2, 0)), False)
sketch7.addGeometry(Part.Circle(App.Vector(7.5, 10, 0), App.Vector(0, 0, 1), 1.7), False)
sketch7.addConstraint(Sketcher.Constraint("Coincident", 0, 2, 1, 1))
sketch7.addConstraint(Sketcher.Constraint("Coincident", 1, 2, 2, 1))
sketch7.addConstraint(Sketcher.Constraint("Coincident", 2, 2, 3, 1))
sketch7.addConstraint(Sketcher.Constraint("Coincident", 3, 2, 0, 1))
sketch7.addConstraint(Sketcher.Constraint("Vertical", 0))
sketch7.addConstraint(Sketcher.Constraint("Horizontal", 1))
sketch7.addConstraint(Sketcher.Constraint("Vertical", 2))
sketch7.addConstraint(Sketcher.Constraint("Horizontal", 3))
sketch7.addConstraint(Sketcher.Constraint("Diameter", 4, 3.4))
sketch7.addConstraint(Sketcher.Constraint("DistanceX", 1, 2, 1, 1, 8.0))
sketch7.addConstraint(Sketcher.Constraint("DistanceY", 0, 2, 0, 1, 18.4))
sketch7.addConstraint(Sketcher.Constraint("DistanceY", -1, 1, 4, 3, 10.0))
sketch7.addConstraint(Sketcher.Constraint("DistanceX", 4, 3, 0, 2, 4.0))
sketch7.addConstraint(Sketcher.Constraint("DistanceX", -1, 1, 4, 3, 7.5))
sketch7.addConstraint(Sketcher.Constraint("DistanceY", -1, 1, 0, 2, 0.8))
sketch7.setExpression("Constraints[8]", "Params.sketch7_diameter")
sketch7.setExpression("Constraints[9]", "Params.sketch7_width")
sketch7.setExpression("Constraints[10]", "Params.sketch7_height")
pad4 = body4.newObject("PartDesign::Pad", "Pad003")
pad4.Profile = sketch7
pad4.setExpression("Length", "Params.pad4_length")
pad4.Reversed = True
doc.recompute()

fillet2 = body4.newObject("PartDesign::Fillet", "Fillet001")
fillet2.Base = (pad4, edges_at(pad4, [
    (3.5, 0.8, -1.75),
    (11.5, 0.8, -1.75),
    (11.5, 19.2, -1.75),
    (3.5, 19.2, -1.75),
]))
fillet2.setExpression("Radius", "Params.fillet2_radius")
mirroring.Visibility = False

doc.recompute()
